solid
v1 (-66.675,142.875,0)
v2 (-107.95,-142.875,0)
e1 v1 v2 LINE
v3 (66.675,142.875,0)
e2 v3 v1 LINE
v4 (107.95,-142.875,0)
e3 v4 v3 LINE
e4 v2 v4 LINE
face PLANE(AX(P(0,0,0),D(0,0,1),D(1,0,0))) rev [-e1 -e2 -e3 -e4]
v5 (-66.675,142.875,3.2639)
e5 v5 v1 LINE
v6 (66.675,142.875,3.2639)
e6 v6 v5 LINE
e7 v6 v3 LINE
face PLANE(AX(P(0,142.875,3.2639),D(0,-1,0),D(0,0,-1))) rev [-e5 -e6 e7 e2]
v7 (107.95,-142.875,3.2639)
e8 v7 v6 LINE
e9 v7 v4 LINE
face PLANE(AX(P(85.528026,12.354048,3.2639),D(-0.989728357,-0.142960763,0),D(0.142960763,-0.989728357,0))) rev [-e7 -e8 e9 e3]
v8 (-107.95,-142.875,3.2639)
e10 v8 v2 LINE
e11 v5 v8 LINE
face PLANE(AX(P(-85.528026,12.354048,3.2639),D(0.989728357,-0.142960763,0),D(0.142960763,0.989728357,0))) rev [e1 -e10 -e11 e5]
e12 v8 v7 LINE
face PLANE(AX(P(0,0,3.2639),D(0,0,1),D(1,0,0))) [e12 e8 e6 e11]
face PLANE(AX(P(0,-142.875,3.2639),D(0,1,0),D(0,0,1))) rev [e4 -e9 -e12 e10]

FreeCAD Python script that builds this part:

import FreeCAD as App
import Part
import Sketcher
from FreeCAD import Vector
Q = App.Units.Quantity

doc = App.newDocument("Part")
body = doc.addObject("PartDesign::Body", "Body")

sketch1 = doc.addObject("Sketcher::SketchObject", "Sketch")
body.addObject(sketch1)
sketch1.AttachmentSupport = (doc.XY_Plane, [""])
sketch1.MapMode = "FlatFace"
sketch1.addGeometry(Part.LineSegment(Vector(-66.675, 142.875, 0), Vector(-107.95, -142.875, 0)), False)
sketch1.addGeometry(Part.LineSegment(Vector(-107.95, -142.875, 0), Vector(107.95, -142.875, 0)), False)
sketch1.addGeometry(Part.LineSegment(Vector(107.95, -142.875, 0), Vector(66.675, 142.875, 0)), False)
sketch1.addGeometry(Part.LineSegment(Vector(66.675, 142.875, 0), Vector(-66.675, 142.875, 0)), False)
sketch1.addConstraint(Sketcher.Constraint("Coincident", 0, 2, 1, 1))
sketch1.addConstraint(Sketcher.Constraint("Coincident", 1, 2, 2, 1))
sketch1.addConstraint(Sketcher.Constraint("Coincident", 2, 2, 3, 1))
sketch1.addConstraint(Sketcher.Constraint("Coincident", 3, 2, 0, 1))
sketch1.addConstraint(Sketcher.Constraint("Horizontal", 1))
sketch1.addConstraint(Sketcher.Constraint("Horizontal", 3))
sketch1.addConstraint(Sketcher.Constraint("Equal", 0, 2))
sketch1.addConstraint(Sketcher.Constraint("DistanceX", 1, 1, 1, 2, Q("8.5 in")))
sketch1.addConstraint(Sketcher.Constraint("DistanceX", 3, 2, 3, 1, Q("5.25 in")))
sketch1.addConstraint(Sketcher.Constraint("DistanceX", 0, 2, -1, 1, Q("4.25 in")))
sketch1.addConstraint(Sketcher.Constraint("DistanceY", 1, 2, 2, 2, Q("11.25 in")))
sketch1.addConstraint(Sketcher.Constraint("DistanceY", 0, 2, -1, 1, Q("5.625 in")))
pad1 = doc.addObject("PartDesign::Pad", "Pad")
body.addObject(pad1)
pad1.Profile = sketch1
pad1.Length = Q("0.1285 in")

doc.recompute()
